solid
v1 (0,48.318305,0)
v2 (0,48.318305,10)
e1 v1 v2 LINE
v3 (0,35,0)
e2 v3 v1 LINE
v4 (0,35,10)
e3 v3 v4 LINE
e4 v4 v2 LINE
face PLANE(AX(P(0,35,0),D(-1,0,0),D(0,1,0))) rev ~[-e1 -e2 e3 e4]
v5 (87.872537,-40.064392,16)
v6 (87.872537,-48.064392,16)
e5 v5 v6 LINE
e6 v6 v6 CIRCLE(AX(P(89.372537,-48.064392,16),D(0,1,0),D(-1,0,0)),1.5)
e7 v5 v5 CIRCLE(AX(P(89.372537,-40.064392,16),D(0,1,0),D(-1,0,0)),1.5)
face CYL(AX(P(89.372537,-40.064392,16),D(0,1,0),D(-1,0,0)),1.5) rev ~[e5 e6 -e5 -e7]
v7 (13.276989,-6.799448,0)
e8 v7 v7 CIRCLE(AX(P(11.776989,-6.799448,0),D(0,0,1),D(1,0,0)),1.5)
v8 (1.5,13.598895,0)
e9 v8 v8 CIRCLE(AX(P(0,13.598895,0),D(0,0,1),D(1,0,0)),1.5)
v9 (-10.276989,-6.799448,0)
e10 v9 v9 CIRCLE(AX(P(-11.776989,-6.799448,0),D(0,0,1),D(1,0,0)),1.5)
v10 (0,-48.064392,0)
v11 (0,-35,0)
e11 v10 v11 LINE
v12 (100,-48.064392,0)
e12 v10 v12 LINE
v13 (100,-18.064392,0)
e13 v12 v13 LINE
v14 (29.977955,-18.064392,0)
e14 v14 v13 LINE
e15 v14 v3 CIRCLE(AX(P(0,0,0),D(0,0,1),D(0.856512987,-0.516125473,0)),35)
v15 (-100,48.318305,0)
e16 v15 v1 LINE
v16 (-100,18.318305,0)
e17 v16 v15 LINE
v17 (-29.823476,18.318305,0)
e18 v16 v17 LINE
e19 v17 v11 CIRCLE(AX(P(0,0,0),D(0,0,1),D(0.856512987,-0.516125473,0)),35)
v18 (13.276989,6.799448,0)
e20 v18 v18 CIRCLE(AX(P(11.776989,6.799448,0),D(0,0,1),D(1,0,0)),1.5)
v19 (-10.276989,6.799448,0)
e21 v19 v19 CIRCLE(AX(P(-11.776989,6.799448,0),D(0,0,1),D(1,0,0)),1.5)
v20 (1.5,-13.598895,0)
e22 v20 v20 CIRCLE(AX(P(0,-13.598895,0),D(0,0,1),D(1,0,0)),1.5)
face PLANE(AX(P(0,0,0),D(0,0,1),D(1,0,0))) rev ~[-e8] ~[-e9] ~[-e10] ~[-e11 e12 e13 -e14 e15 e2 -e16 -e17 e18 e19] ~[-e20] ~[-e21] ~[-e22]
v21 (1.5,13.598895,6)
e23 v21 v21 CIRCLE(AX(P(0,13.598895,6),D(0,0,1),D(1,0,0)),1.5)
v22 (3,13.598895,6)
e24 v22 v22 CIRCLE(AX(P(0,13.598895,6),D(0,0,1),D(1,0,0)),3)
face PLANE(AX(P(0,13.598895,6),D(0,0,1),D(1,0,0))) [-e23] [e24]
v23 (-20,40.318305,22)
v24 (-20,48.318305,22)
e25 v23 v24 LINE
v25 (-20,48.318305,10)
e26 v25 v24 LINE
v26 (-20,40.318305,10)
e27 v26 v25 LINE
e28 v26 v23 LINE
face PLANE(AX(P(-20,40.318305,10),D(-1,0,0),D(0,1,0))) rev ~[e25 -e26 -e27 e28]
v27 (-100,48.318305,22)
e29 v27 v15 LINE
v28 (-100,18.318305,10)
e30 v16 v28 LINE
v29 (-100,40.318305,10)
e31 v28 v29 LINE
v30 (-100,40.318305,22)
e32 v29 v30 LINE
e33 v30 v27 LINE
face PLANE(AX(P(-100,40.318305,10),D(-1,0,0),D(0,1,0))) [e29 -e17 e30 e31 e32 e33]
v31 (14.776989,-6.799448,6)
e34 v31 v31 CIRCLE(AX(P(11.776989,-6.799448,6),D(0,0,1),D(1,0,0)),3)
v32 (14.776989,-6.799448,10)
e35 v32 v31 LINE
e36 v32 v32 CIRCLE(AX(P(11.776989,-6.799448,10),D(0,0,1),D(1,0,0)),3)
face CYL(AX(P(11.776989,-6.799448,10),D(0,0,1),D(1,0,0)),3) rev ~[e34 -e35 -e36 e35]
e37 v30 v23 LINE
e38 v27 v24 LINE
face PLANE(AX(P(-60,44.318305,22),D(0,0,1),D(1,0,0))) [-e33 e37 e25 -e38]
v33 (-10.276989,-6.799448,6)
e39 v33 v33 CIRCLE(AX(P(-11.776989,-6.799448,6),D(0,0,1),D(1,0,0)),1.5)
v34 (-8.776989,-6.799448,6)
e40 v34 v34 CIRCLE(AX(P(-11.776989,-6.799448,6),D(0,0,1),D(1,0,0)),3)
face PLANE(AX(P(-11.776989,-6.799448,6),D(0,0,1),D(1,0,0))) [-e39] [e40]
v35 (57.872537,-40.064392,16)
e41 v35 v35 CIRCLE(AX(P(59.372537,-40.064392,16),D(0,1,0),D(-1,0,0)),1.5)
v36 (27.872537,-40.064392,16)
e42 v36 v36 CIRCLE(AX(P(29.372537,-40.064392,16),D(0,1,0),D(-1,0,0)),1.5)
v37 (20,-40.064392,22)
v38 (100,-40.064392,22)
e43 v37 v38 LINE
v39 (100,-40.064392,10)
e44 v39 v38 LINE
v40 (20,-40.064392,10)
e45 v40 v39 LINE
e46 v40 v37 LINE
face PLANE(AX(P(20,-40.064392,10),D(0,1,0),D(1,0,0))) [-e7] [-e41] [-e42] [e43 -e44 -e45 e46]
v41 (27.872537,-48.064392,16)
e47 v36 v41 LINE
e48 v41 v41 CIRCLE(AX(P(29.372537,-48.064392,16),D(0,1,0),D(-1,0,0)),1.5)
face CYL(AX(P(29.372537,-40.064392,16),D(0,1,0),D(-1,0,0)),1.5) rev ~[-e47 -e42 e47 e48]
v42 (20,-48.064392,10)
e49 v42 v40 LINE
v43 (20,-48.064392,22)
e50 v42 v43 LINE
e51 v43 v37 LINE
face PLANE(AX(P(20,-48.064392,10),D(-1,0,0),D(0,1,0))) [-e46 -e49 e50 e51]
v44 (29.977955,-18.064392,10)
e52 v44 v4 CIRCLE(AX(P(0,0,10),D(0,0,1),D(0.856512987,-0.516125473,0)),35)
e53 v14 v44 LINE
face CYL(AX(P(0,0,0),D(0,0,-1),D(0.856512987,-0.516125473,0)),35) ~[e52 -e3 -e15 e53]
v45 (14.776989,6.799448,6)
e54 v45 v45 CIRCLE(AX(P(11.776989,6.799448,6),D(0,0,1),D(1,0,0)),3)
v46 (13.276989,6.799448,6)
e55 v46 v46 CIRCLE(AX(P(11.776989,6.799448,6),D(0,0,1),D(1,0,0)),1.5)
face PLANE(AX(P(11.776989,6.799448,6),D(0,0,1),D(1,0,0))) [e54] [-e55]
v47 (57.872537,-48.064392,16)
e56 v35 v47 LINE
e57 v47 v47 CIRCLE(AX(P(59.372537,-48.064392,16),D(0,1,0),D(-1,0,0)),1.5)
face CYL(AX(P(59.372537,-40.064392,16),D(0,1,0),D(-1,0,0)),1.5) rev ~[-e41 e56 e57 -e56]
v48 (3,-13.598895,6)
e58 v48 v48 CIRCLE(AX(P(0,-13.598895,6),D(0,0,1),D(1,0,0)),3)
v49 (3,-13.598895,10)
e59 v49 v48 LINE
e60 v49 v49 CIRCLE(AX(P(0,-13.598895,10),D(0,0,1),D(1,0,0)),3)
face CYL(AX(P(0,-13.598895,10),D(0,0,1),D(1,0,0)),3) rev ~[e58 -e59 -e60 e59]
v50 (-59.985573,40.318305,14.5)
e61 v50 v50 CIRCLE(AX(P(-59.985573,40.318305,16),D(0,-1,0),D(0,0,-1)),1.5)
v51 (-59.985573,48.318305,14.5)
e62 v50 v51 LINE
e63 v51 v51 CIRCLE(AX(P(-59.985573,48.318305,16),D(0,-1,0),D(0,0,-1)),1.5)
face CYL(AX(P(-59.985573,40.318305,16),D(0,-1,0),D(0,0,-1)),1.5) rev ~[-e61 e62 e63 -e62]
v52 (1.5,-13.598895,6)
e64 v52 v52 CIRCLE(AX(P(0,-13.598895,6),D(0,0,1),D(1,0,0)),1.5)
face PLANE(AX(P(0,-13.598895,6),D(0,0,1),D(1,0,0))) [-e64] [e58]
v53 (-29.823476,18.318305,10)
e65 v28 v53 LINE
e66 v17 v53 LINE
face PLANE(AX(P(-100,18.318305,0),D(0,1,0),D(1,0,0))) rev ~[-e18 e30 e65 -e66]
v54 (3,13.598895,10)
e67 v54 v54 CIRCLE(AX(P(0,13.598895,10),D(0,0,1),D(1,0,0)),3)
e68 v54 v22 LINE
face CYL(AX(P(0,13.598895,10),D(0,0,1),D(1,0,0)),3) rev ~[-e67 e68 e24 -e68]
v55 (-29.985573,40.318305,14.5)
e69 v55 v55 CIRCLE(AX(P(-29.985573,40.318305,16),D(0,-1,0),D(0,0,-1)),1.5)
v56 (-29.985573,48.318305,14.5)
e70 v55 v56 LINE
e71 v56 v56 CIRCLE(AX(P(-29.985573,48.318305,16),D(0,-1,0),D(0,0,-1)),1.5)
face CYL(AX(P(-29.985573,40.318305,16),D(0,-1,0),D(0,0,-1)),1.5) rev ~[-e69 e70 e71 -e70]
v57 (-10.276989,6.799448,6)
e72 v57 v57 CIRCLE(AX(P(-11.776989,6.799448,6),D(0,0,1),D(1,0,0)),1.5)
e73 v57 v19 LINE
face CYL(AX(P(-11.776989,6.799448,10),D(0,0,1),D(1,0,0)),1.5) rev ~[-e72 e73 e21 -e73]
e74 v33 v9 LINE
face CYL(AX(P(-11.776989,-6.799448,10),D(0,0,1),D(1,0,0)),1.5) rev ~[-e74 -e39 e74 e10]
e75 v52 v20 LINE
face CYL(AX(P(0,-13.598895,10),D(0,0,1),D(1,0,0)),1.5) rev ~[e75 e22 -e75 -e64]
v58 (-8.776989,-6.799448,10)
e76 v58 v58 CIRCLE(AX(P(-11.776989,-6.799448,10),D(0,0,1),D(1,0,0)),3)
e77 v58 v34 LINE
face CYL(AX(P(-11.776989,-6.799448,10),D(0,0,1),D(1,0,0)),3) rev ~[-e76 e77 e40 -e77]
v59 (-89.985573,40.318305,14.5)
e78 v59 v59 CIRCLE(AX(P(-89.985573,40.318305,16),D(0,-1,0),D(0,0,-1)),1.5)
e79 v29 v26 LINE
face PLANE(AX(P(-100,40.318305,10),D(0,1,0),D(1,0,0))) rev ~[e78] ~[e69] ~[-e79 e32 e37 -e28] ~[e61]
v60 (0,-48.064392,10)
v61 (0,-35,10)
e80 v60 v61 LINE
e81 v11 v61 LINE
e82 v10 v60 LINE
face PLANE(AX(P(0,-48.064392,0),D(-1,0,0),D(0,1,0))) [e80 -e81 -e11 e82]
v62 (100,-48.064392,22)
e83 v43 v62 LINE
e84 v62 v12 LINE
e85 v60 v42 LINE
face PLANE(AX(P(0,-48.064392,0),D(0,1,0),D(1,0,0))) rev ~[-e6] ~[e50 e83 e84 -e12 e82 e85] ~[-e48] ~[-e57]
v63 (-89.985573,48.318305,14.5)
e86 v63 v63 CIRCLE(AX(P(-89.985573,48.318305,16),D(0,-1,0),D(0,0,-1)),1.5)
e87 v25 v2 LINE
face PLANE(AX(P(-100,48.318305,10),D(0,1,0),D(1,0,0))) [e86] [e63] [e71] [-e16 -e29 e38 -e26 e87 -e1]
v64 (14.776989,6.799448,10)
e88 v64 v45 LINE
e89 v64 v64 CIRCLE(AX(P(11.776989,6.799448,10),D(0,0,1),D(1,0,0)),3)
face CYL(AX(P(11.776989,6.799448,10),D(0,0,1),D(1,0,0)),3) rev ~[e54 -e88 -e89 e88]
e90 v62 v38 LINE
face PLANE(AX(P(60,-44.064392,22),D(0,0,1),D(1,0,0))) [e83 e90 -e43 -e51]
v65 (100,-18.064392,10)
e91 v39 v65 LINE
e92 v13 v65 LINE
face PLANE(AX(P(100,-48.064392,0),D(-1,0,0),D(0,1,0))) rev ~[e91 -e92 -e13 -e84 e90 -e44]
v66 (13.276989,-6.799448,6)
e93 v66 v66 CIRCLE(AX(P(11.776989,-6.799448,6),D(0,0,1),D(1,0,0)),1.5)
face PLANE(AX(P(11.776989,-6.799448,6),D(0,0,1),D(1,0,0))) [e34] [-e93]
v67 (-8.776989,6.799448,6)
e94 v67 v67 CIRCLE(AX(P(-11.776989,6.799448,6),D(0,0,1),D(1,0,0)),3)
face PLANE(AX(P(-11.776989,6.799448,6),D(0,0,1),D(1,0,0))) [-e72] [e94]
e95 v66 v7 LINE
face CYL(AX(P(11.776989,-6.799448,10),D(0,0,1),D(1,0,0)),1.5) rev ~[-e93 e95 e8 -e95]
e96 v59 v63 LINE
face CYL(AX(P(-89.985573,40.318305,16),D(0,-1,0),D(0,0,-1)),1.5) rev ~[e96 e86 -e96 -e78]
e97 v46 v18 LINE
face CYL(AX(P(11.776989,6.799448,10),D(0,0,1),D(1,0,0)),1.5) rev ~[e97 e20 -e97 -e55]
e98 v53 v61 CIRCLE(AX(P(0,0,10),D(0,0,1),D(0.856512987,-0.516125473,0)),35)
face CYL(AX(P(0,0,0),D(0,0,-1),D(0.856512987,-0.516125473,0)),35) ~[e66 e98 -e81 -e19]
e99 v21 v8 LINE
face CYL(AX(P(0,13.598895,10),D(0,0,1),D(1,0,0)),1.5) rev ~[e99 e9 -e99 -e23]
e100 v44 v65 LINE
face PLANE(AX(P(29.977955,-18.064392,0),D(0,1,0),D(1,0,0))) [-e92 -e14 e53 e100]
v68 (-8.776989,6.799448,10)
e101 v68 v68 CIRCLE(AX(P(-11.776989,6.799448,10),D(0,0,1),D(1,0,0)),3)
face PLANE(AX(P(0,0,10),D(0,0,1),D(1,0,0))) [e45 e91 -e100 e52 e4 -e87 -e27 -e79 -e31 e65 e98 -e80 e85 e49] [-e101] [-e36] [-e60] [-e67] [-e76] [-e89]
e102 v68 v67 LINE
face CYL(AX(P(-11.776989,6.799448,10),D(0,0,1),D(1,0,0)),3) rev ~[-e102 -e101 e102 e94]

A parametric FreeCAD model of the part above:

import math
import FreeCAD as App
import Part
import Sketcher
from FreeCAD import Vector
Q = App.Units.Quantity


def add_polygon(sketch, points):
    """Adds a closed chain of lines whose ends are joined by coincident constraints."""
    first, n = sketch.GeometryCount, len(points)
    for a, b in zip(points, points[1:] + points[:1]):
        sketch.addGeometry(Part.LineSegment(App.Vector(*a, 0), App.Vector(*b, 0)), False)
    for i in range(n):
        sketch.addConstraint(Sketcher.Constraint("Coincident", first + i, 2, first + (i + 1) % n, 1))

doc = App.newDocument("Part")
params = doc.addObject("Spreadsheet::Sheet", "Params")
for row, (alias, value) in enumerate([
    ("sketch1_radius", "35 mm"),
    ("sketch1_width", "100 mm"),
    ("sketch1_height", "30 mm"),
    ("pad1_length", "10 mm"),
    ("sketch2_diameter", "6 mm"),
    ("sketch2_diameter2", "3 mm"),
    ("pocket1_length", "4 mm"),
    ("sketch3_diameter", "3 mm"),
    ("sketch4_width", "80 mm"),
    ("sketch4_height", "8 mm"),
    ("pad2_length", "12 mm"),
    ("sketch5_diameter", "3 mm"),
    ("sketch6_diameter", "3 mm"),
], start=1):
    params.set(f"A{row}", alias)
    params.set(f"B{row}", "=" + value)
    params.setAlias(f"B{row}", alias)

body = doc.addObject("PartDesign::Body", "Body")

sketch1 = doc.addObject("Sketcher::SketchObject", "Sketch")
body.addObject(sketch1)
sketch1.AttachmentSupport = (doc.XY_Plane, [""])
sketch1.MapMode = "FlatFace"
sketch1.addGeometry([
    Part.LineSegment(Vector(100, -18, 0), Vector(30, -18, 0)),
    Part.ArcOfCircle(Part.Circle(Vector(0, 0, 0), Vector(0, 0, 1), 35), math.radians(-31), math.radians(90)),
    Part.LineSegment(Vector(0, 35, 0), Vector(0, 48, 0)),
    Part.LineSegment(Vector(0, 48, 0), Vector(-100, 48, 0)),
    Part.LineSegment(Vector(-100, 48, 0), Vector(-100, 18, 0)),
    Part.LineSegment(Vector(-100, 18, 0), Vector(-30, 18, 0)),
    Part.ArcOfCircle(Part.Circle(Vector(0, 0, 0), Vector(0, 0, 1), 35), math.radians(148), math.radians(270)),
    Part.LineSegment(Vector(0, -35, 0), Vector(0, -48, 0)),
    Part.LineSegment(Vector(0, -48, 0), Vector(100, -48, 0)),
    Part.LineSegment(Vector(100, -48, 0), Vector(100, -18, 0)),
], False)
sketch1.addConstraint([
    Sketcher.Constraint("Coincident", 0, 2, 1, 1),
    Sketcher.Constraint("Coincident", 1, 2, 2, 1),
    Sketcher.Constraint("Coincident", 2, 2, 3, 1),
    Sketcher.Constraint("Coincident", 3, 2, 4, 1),
    Sketcher.Constraint("Coincident", 4, 2, 5, 1),
    Sketcher.Constraint("Coincident", 5, 2, 6, 1),
    Sketcher.Constraint("Coincident", 6, 2, 7, 1),
    Sketcher.Constraint("Coincident", 7, 2, 8, 1),
    Sketcher.Constraint("Coincident", 8, 2, 9, 1),
    Sketcher.Constraint("Coincident", 9, 2, 0, 1),
    Sketcher.Constraint("Horizontal", 0),
    Sketcher.Constraint("Vertical", 2),
    Sketcher.Constraint("Horizontal", 3),
    Sketcher.Constraint("Vertical", 4),
    Sketcher.Constraint("Horizontal", 5),
    Sketcher.Constraint("Vertical", 7),
    Sketcher.Constraint("Horizontal", 8),
    Sketcher.Constraint("Vertical", 9),
    Sketcher.Constraint("Coincident", 1, 3, -1, 1),
    Sketcher.Constraint("Coincident", 6, 3, -1, 1),
    Sketcher.Constraint("Equal", 1, 6),
    Sketcher.Constraint("PointOnObject", 1, 2, -2),
    Sketcher.Constraint("PointOnObject", 6, 2, -2),
    Sketcher.Constraint("Equal", 3, 8),
    Sketcher.Constraint("Equal", 4, 9),
    Sketcher.Constraint("Radius", 1, Q("35 mm")),
    Sketcher.Constraint("DistanceX", 3, 2, 3, 1, Q("100 mm")),
    Sketcher.Constraint("DistanceY", 4, 2, 4, 1, Q("30 mm")),
    Sketcher.Constraint("DistanceY", 7, 2, 7, 1, Q("13.064392 mm")),
    Sketcher.Constraint("DistanceX", 5, 1, 5, 2, Q("70.176524 mm")),
])
sketch1.setExpression("Constraints[25]", "Params.sketch1_radius")
sketch1.setExpression("Constraints[26]", "Params.sketch1_width")
sketch1.setExpression("Constraints[27]", "Params.sketch1_height")
pad1 = doc.addObject("PartDesign::Pad", "Pad")
body.addObject(pad1)
pad1.Profile = sketch1
pad1.setExpression("Length", "Params.pad1_length")

sketch2 = doc.addObject("Sketcher::SketchObject", "Sketch001")
body.addObject(sketch2)
sketch2.AttachmentSupport = (doc.XY_Plane, [""])
sketch2.MapMode = "FlatFace"
sketch2.AttachmentOffset = App.Placement(Vector(0, 0, 10), App.Rotation())
sketch2.addGeometry([
    Part.Circle(Vector(0, -13.6, 0), Vector(0, 0, 1), 3),
    Part.Circle(Vector(0, -13.6, 0), Vector(0, 0, 1), 1.5),
    Part.Circle(Vector(-11.8, -6.8, 0), Vector(0, 0, 1), 3),
    Part.Circle(Vector(-11.8, -6.8, 0), Vector(0, 0, 1), 1.5),
    Part.Circle(Vector(-11.8, 6.8, 0), Vector(0, 0, 1), 3),
    Part.Circle(Vector(-11.8, 6.8, 0), Vector(0, 0, 1), 1.5),
    Part.Circle(Vector(0, 13.6, 0), Vector(0, 0, 1), 3),
    Part.Circle(Vector(0, 13.6, 0), Vector(0, 0, 1), 1.5),
    Part.Circle(Vector(11.8, 6.8, 0), Vector(0, 0, 1), 3),
    Part.Circle(Vector(11.8, 6.8, 0), Vector(0, 0, 1), 1.5),
    Part.Circle(Vector(11.8, -6.8, 0), Vector(0, 0, 1), 3),
    Part.Circle(Vector(11.8, -6.8, 0), Vector(0, 0, 1), 1.5),
], False)
sketch2.addConstraint([
    Sketcher.Constraint("Coincident", 1, 3, 0, 3),
    Sketcher.Constraint("Coincident", 3, 3, 2, 3),
    Sketcher.Constraint("Coincident", 5, 3, 4, 3),
    Sketcher.Constraint("Coincident", 7, 3, 6, 3),
    Sketcher.Constraint("Coincident", 9, 3, 8, 3),
    Sketcher.Constraint("Coincident", 11, 3, 10, 3),
    Sketcher.Constraint("Equal", 0, 2),
    Sketcher.Constraint("Equal", 1, 3),
    Sketcher.Constraint("Equal", 2, 4),
    Sketcher.Constraint("Equal", 3, 5),
    Sketcher.Constraint("Equal", 4, 6),
    Sketcher.Constraint("Equal", 5, 7),
    Sketcher.Constraint("Equal", 6, 8),
    Sketcher.Constraint("Equal", 7, 9),
    Sketcher.Constraint("Equal", 8, 10),
    Sketcher.Constraint("Equal", 9, 11),
    Sketcher.Constraint("Symmetric", 0, 3, 6, 3, -1, 1),
    Sketcher.Constraint("Symmetric", 2, 3, 8, 3, -1, 1),
    Sketcher.Constraint("Symmetric", 4, 3, 10, 3, -1, 1),
    Sketcher.Constraint("Symmetric", 4, 3, 8, 3, -2),
    Sketcher.Constraint("PointOnObject", 0, 3, -2),
    Sketcher.Constraint("Diameter", 0, Q("6 mm")),
    Sketcher.Constraint("Diameter", 1, Q("3 mm")),
    Sketcher.Constraint("DistanceX", 2, 3, -1, 1, Q("11.776989 mm")),
    Sketcher.Constraint("DistanceY", 0, 3, 6, 3, Q("27.197791 mm")),
    Sketcher.Constraint("DistanceY", 2, 3, -1, 1, Q("6.799448 mm")),
])
sketch2.setExpression("Constraints[21]", "Params.sketch2_diameter")
sketch2.setExpression("Constraints[22]", "Params.sketch2_diameter2")
pocket1 = doc.addObject("PartDesign::Pocket", "Pocket")
body.addObject(pocket1)
pocket1.Profile = sketch2
pocket1.setExpression("Length", "Params.pocket1_length")

sketch3 = doc.addObject("Sketcher::SketchObject", "Sketch002")
body.addObject(sketch3)
sketch3.AttachmentSupport = (doc.XY_Plane, [""])
sketch3.MapMode = "FlatFace"
sketch3.AttachmentOffset = App.Placement(Vector(0, 0, 10), App.Rotation())
sketch3.addGeometry([
    Part.Circle(Vector(0, -13.6, 0), Vector(0, 0, 1), 1.5),
    Part.Circle(Vector(-11.8, -6.8, 0), Vector(0, 0, 1), 1.5),
    Part.Circle(Vector(-11.8, 6.8, 0), Vector(0, 0, 1), 1.5),
    Part.Circle(Vector(0, 13.6, 0), Vector(0, 0, 1), 1.5),
    Part.Circle(Vector(11.8, 6.8, 0), Vector(0, 0, 1), 1.5),
    Part.Circle(Vector(11.8, -6.8, 0), Vector(0, 0, 1), 1.5),
], False)
sketch3.addConstraint([
    Sketcher.Constraint("Equal", 0, 1),
    Sketcher.Constraint("Equal", 1, 2),
    Sketcher.Constraint("Equal", 2, 3),
    Sketcher.Constraint("Equal", 3, 4),
    Sketcher.Constraint("Equal", 4, 5),
    Sketcher.Constraint("Symmetric", 0, 3, 3, 3, -1, 1),
    Sketcher.Constraint("Symmetric", 1, 3, 4, 3, -1, 1),
    Sketcher.Constraint("Symmetric", 2, 3, 5, 3, -1, 1),
    Sketcher.Constraint("Symmetric", 2, 3, 4, 3, -2),
    Sketcher.Constraint("PointOnObject", 0, 3, -2),
    Sketcher.Constraint("Diameter", 0, Q("3 mm")),
    Sketcher.Constraint("DistanceX", 1, 3, -1, 1, Q("11.776989 mm")),
    Sketcher.Constraint("DistanceY", 0, 3, 3, 3, Q("27.197791 mm")),
    Sketcher.Constraint("DistanceY", 1, 3, -1, 1, Q("6.799448 mm")),
])
sketch3.setExpression("Constraints[10]", "Params.sketch3_diameter")
pocket2 = doc.addObject("PartDesign::Pocket", "Pocket001")
body.addObject(pocket2)
pocket2.Profile = sketch3
pocket2.Type = "ThroughAll"

sketch4 = doc.addObject("Sketcher::SketchObject", "Sketch003")
body.addObject(sketch4)
sketch4.AttachmentSupport = (doc.XY_Plane, [""])
sketch4.MapMode = "FlatFace"
sketch4.AttachmentOffset = App.Placement(Vector(0, 0, 10), App.Rotation())
add_polygon(sketch4, [(-100, 48), (-100, 40), (-20, 40), (-20, 48)])
add_polygon(sketch4, [(20, -40), (20, -48), (100, -48), (100, -40)])
sketch4.addConstraint([
    Sketcher.Constraint("Vertical", 0),
    Sketcher.Constraint("Horizontal", 1),
    Sketcher.Constraint("Vertical", 2),
    Sketcher.Constraint("Horizontal", 3),
    Sketcher.Constraint("Vertical", 4),
    Sketcher.Constraint("Horizontal", 5),
    Sketcher.Constraint("Vertical", 6),
    Sketcher.Constraint("Horizontal", 7),
    Sketcher.Constraint("Equal", 3, 5),
    Sketcher.Constraint("Equal", 2, 4),
    Sketcher.Constraint("DistanceX", 1, 1, 1, 2, Q("80 mm")),
    Sketcher.Constraint("DistanceY", 0, 2, 0, 1, Q("8 mm")),
    Sketcher.Constraint("DistanceX", 0, 2, -1, 1, Q("100 mm")),
    Sketcher.Constraint("DistanceX", -1, 1, 4, 2, Q("20 mm")),
    Sketcher.Constraint("DistanceY", 4, 2, -1, 1, Q("48.064392 mm")),
    Sketcher.Constraint("DistanceY", -1, 1, 0, 2, Q("40.318305 mm")),
])
sketch4.setExpression("Constraints[18]", "Params.sketch4_width")
sketch4.setExpression("Constraints[19]", "Params.sketch4_height")
pad2 = doc.addObject("PartDesign::Pad", "Pad001")
body.addObject(pad2)
pad2.Profile = sketch4
pad2.setExpression("Length", "Params.pad2_length")

sketch5 = doc.addObject("Sketcher::SketchObject", "Sketch004")
body.addObject(sketch5)
sketch5.AttachmentSupport = (doc.XZ_Plane, [""])
sketch5.MapMode = "FlatFace"
sketch5.AttachmentOffset = App.Placement(Vector(0, 0, -40.318305), App.Rotation())
sketch5.addGeometry([
    Part.Circle(Vector(-90, 16, 0), Vector(0, 0, 1), 1.5),
    Part.Circle(Vector(-60, 16, 0), Vector(0, 0, 1), 1.5),
    Part.Circle(Vector(-30, 16, 0), Vector(0, 0, 1), 1.5),
], False)
sketch5.addConstraint([
    Sketcher.Constraint("Equal", 0, 1),
    Sketcher.Constraint("Equal", 1, 2),
    Sketcher.Constraint("Horizontal", 0, 3, 1, 3),
    Sketcher.Constraint("Horizontal", 1, 3, 2, 3),
    Sketcher.Constraint("Diameter", 0, Q("3 mm")),
    Sketcher.Constraint("DistanceY", -1, 1, 0, 3, Q("16 mm")),
    Sketcher.Constraint("DistanceX", 0, 3, 1, 3, Q("30 mm")),
    Sketcher.Constraint("DistanceX", 1, 3, 2, 3, Q("30 mm")),
    Sketcher.Constraint("DistanceX", 0, 3, -1, 1, Q("89.985573 mm")),
])
sketch5.setExpression("Constraints[4]", "Params.sketch5_diameter")
pocket3 = doc.addObject("PartDesign::Pocket", "Pocket002")
body.addObject(pocket3)
pocket3.Profile = sketch5
pocket3.Type = "ThroughAll"

sketch6 = doc.addObject("Sketcher::SketchObject", "Sketch005")
body.addObject(sketch6)
sketch6.AttachmentSupport = (doc.XZ_Plane, [""])
sketch6.MapMode = "FlatFace"
sketch6.AttachmentOffset = App.Placement(Vector(0, 0, 40.064392), App.Rotation())
sketch6.addGeometry([
    Part.Circle(Vector(29.4, 16, 0), Vector(0, 0, 1), 1.5),
    Part.Circle(Vector(59.4, 16, 0), Vector(0, 0, 1), 1.5),
    Part.Circle(Vector(89.4, 16, 0), Vector(0, 0, 1), 1.5),
], False)
sketch6.addConstraint([
    Sketcher.Constraint("Equal", 0, 1),
    Sketcher.Constraint("Equal", 1, 2),
    Sketcher.Constraint("Horizontal", 0, 3, 1, 3),
    Sketcher.Constraint("Horizontal", 1, 3, 2, 3),
    Sketcher.Constraint("Diameter", 0, Q("3 mm")),
    Sketcher.Constraint("DistanceY", -1, 1, 0, 3, Q("16 mm")),
    Sketcher.Constraint("DistanceX", 0, 3, 1, 3, Q("30 mm")),
    Sketcher.Constraint("DistanceX", 1, 3, 2, 3, Q("30 mm")),
    Sketcher.Constraint("DistanceX", -1, 1, 0, 3, Q("29.372537 mm")),
])
sketch6.setExpression("Constraints[4]", "Params.sketch6_diameter")
pocket4 = doc.addObject("PartDesign::Pocket", "Pocket003")
body.addObject(pocket4)
pocket4.Profile = sketch6
pocket4.Type = "ThroughAll"
pocket4.Reversed = True

doc.recompute()
